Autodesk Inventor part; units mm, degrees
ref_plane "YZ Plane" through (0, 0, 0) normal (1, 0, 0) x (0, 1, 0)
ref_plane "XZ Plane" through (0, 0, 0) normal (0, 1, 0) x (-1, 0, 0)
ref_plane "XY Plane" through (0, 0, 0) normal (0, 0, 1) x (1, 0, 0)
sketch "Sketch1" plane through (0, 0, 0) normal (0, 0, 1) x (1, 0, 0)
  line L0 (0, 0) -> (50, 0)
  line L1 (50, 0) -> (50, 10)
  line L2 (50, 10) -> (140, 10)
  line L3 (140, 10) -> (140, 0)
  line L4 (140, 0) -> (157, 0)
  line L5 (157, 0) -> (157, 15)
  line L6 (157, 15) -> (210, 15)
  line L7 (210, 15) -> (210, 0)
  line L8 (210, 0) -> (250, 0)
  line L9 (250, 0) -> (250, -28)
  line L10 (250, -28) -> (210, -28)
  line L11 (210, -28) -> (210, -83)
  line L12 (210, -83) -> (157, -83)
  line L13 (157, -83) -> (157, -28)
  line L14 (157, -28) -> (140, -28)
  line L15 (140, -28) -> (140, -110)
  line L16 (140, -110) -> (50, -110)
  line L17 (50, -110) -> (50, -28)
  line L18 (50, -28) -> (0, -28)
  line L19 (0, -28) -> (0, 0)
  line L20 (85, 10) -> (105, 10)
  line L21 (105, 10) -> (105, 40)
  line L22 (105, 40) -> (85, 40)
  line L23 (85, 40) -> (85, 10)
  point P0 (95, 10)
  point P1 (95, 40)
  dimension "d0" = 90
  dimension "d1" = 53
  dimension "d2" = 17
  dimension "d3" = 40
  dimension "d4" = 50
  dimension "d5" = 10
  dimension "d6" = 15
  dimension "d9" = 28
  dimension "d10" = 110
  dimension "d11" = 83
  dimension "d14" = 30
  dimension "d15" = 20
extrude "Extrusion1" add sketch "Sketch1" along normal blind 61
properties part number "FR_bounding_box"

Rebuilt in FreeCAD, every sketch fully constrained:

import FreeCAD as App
import Part
import Sketcher
from FreeCAD import Vector

doc = App.newDocument("Part")
body = doc.addObject("PartDesign::Body", "Body")

sketch1 = body.newObject("Sketcher::SketchObject", "Sketch")
sketch1.AttachmentSupport = (doc.getObject("XY_Plane"), [""])
sketch1.MapMode = "FlatFace"
sketch1.addGeometry(Part.LineSegment(Vector(50, 0, 0), Vector(0, 0, 0)), False)
sketch1.addGeometry(Part.LineSegment(Vector(0, 0, 0), Vector(0, -28, 0)), False)
sketch1.addGeometry(Part.LineSegment(Vector(0, -28, 0), Vector(50, -28, 0)), False)
sketch1.addGeometry(Part.LineSegment(Vector(50, -28, 0), Vector(50, -110, 0)), False)
sketch1.addGeometry(Part.LineSegment(Vector(50, -110, 0), Vector(140, -110, 0)), False)
sketch1.addGeometry(Part.LineSegment(Vector(140, -110, 0), Vector(140, -28, 0)), False)
sketch1.addGeometry(Part.LineSegment(Vector(140, -28, 0), Vector(157, -28, 0)), False)
sketch1.addGeometry(Part.LineSegment(Vector(157, -28, 0), Vector(157, -83, 0)), False)
sketch1.addGeometry(Part.LineSegment(Vector(157, -83, 0), Vector(210, -83, 0)), False)
sketch1.addGeometry(Part.LineSegment(Vector(210, -83, 0), Vector(210, -28, 0)), False)
sketch1.addGeometry(Part.LineSegment(Vector(210, -28, 0), Vector(250, -28, 0)), False)
sketch1.addGeometry(Part.LineSegment(Vector(250, -28, 0), Vector(250, 0, 0)), False)
sketch1.addGeometry(Part.LineSegment(Vector(250, 0, 0), Vector(210, 0, 0)), False)
sketch1.addGeometry(Part.LineSegment(Vector(210, 0, 0), Vector(210, 15, 0)), False)
sketch1.addGeometry(Part.LineSegment(Vector(210, 15, 0), Vector(157, 15, 0)), False)
sketch1.addGeometry(Part.LineSegment(Vector(157, 15, 0), Vector(157, 0, 0)), False)
sketch1.addGeometry(Part.LineSegment(Vector(157, 0, 0), Vector(140, 0, 0)), False)
sketch1.addGeometry(Part.LineSegment(Vector(140, 0, 0), Vector(140, 10, 0)), False)
sketch1.addGeometry(Part.LineSegment(Vector(140, 10, 0), Vector(105, 10, 0)), False)
sketch1.addGeometry(Part.LineSegment(Vector(105, 10, 0), Vector(105, 40, 0)), False)
sketch1.addGeometry(Part.LineSegment(Vector(105, 40, 0), Vector(85, 40, 0)), False)
sketch1.addGeometry(Part.LineSegment(Vector(85, 40, 0), Vector(85, 10, 0)), False)
sketch1.addGeometry(Part.LineSegment(Vector(85, 10, 0), Vector(50, 10, 0)), False)
sketch1.addGeometry(Part.LineSegment(Vector(50, 10, 0), Vector(50, 0, 0)), False)
sketch1.addConstraint(Sketcher.Constraint("Coincident", 0, 2, 1, 1))
sketch1.addConstraint(Sketcher.Constraint("Coincident", 1, 2, 2, 1))
sketch1.addConstraint(Sketcher.Constraint("Coincident", 2, 2, 3, 1))
sketch1.addConstraint(Sketcher.Constraint("Coincident", 3, 2, 4, 1))
sketch1.addConstraint(Sketcher.Constraint("Coincident", 4, 2, 5, 1))
sketch1.addConstraint(Sketcher.Constraint("Coincident", 5, 2, 6, 1))
sketch1.addConstraint(Sketcher.Constraint("Coincident", 6, 2, 7, 1))
sketch1.addConstraint(Sketcher.Constraint("Coincident", 7, 2, 8, 1))
sketch1.addConstraint(Sketcher.Constraint("Coincident", 8, 2, 9, 1))
sketch1.addConstraint(Sketcher.Constraint("Coincident", 9, 2, 10, 1))
sketch1.addConstraint(Sketcher.Constraint("Coincident", 10, 2, 11, 1))
sketch1.addConstraint(Sketcher.Constraint("Coincident", 11, 2, 12, 1))
sketch1.addConstraint(Sketcher.Constraint("Coincident", 12, 2, 13, 1))
sketch1.addConstraint(Sketcher.Constraint("Coincident", 13, 2, 14, 1))
sketch1.addConstraint(Sketcher.Constraint("Coincident", 14, 2, 15, 1))
sketch1.addConstraint(Sketcher.Constraint("Coincident", 15, 2, 16, 1))
sketch1.addConstraint(Sketcher.Constraint("Coincident", 16, 2, 17, 1))
sketch1.addConstraint(Sketcher.Constraint("Coincident", 17, 2, 18, 1))
sketch1.addConstraint(Sketcher.Constraint("Coincident", 18, 2, 19, 1))
sketch1.addConstraint(Sketcher.Constraint("Coincident", 19, 2, 20, 1))
sketch1.addConstraint(Sketcher.Constraint("Coincident", 20, 2, 21, 1))
sketch1.addConstraint(Sketcher.Constraint("Coincident", 21, 2, 22, 1))
sketch1.addConstraint(Sketcher.Constraint("Coincident", 22, 2, 23, 1))
sketch1.addConstraint(Sketcher.Constraint("Coincident", 23, 2, 0, 1))
sketch1.addConstraint(Sketcher.Constraint("Horizontal", 0))
sketch1.addConstraint(Sketcher.Constraint("Vertical", 1))
sketch1.addConstraint(Sketcher.Constraint("Horizontal", 2))
sketch1.addConstraint(Sketcher.Constraint("Vertical", 3))
sketch1.addConstraint(Sketcher.Constraint("Horizontal", 4))
sketch1.addConstraint(Sketcher.Constraint("Vertical", 5))
sketch1.addConstraint(Sketcher.Constraint("Horizontal", 6))
sketch1.addConstraint(Sketcher.Constraint("Vertical", 7))
sketch1.addConstraint(Sketcher.Constraint("Horizontal", 8))
sketch1.addConstraint(Sketcher.Constraint("Vertical", 9))
sketch1.addConstraint(Sketcher.Constraint("Horizontal", 10))
sketch1.addConstraint(Sketcher.Constraint("Vertical", 11))
sketch1.addConstraint(Sketcher.Constraint("Horizontal", 12))
sketch1.addConstraint(Sketcher.Constraint("Vertical", 13))
sketch1.addConstraint(Sketcher.Constraint("Horizontal", 14))
sketch1.addConstraint(Sketcher.Constraint("Vertical", 15))
sketch1.addConstraint(Sketcher.Constraint("Horizontal", 16))
sketch1.addConstraint(Sketcher.Constraint("Vertical", 17))
sketch1.addConstraint(Sketcher.Constraint("Horizontal", 18))
sketch1.addConstraint(Sketcher.Constraint("Vertical", 19))
sketch1.addConstraint(Sketcher.Constraint("Horizontal", 20))
sketch1.addConstraint(Sketcher.Constraint("Vertical", 21))
sketch1.addConstraint(Sketcher.Constraint("Horizontal", 22))
sketch1.addConstraint(Sketcher.Constraint("Vertical", 23))
sketch1.addConstraint(Sketcher.Constraint("Coincident", 0, 2, -1, 1))
sketch1.addConstraint(Sketcher.Constraint("PointOnObject", 11, 2, -1))
sketch1.addConstraint(Sketcher.Constraint("PointOnObject", 15, 2, -1))
sketch1.addConstraint(Sketcher.Constraint("Horizontal", 2, 2, 5, 2))
sketch1.addConstraint(Sketcher.Constraint("Horizontal", 6, 2, 9, 2))
sketch1.addConstraint(Sketcher.Constraint("Horizontal", 18, 2, 21, 2))
sketch1.addConstraint(Sketcher.Constraint("Vertical", 9, 2, 12, 2))
sketch1.addConstraint(Sketcher.Constraint("Vertical", 7, 2, 14, 2))
sketch1.addConstraint(Sketcher.Constraint("Vertical", 5, 2, 16, 2))
sketch1.addConstraint(Sketcher.Constraint("Vertical", 3, 2, 22, 2))
sketch1.addConstraint(Sketcher.Constraint("Equal", 18, 22))
sketch1.addConstraint(Sketcher.Constraint("DistanceX", 0, 2, 0, 1, 50.0))
sketch1.addConstraint(Sketcher.Constraint("DistanceX", 4, 1, 4, 2, 90.0))
sketch1.addConstraint(Sketcher.Constraint("DistanceX", 6, 1, 6, 2, 17.0))
sketch1.addConstraint(Sketcher.Constraint("DistanceX", 8, 1, 8, 2, 53.0))
sketch1.addConstraint(Sketcher.Constraint("DistanceX", 10, 1, 10, 2, 40.0))
sketch1.addConstraint(Sketcher.Constraint("DistanceX", 20, 2, 20, 1, 20.0))
sketch1.addConstraint(Sketcher.Constraint("DistanceY", 1, 2, 1, 1, 28.0))
sketch1.addConstraint(Sketcher.Constraint("DistanceY", 13, 1, 13, 2, 15.0))
sketch1.addConstraint(Sketcher.Constraint("DistanceY", 17, 1, 17, 2, 10.0))
sketch1.addConstraint(Sketcher.Constraint("DistanceY", 19, 1, 19, 2, 30.0))
sketch1.addConstraint(Sketcher.Constraint("DistanceY", 3, 2, -1, 1, 110.0))
sketch1.addConstraint(Sketcher.Constraint("DistanceY", 7, 2, -1, 1, 83.0))
pad1 = body.newObject("PartDesign::Pad", "Pad")
pad1.Profile = sketch1
pad1.Length = 61

doc.recompute()
